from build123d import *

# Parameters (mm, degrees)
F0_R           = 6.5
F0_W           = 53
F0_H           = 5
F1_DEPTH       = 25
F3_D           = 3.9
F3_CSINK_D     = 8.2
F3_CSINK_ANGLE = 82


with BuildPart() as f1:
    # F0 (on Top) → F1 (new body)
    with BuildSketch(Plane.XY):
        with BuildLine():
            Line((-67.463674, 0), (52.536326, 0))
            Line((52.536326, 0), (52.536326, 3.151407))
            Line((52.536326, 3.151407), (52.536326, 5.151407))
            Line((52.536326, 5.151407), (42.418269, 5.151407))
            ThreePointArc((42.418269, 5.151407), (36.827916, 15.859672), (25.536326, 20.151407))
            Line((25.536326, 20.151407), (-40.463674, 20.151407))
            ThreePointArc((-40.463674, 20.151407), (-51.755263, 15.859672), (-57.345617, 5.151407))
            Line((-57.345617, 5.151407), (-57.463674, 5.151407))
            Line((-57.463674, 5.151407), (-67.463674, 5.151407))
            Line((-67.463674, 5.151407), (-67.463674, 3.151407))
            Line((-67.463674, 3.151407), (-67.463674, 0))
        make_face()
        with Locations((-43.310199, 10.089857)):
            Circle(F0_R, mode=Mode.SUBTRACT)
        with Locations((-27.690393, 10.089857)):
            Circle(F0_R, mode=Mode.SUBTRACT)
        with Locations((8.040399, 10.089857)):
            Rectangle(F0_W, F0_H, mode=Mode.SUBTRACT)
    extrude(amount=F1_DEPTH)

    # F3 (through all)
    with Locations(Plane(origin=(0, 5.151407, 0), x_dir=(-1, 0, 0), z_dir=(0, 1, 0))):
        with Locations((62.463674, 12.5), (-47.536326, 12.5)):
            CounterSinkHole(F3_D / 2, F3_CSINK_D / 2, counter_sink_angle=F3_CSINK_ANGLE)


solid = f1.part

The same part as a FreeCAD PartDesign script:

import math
import FreeCAD as App
import Part
import Sketcher

doc = App.newDocument("Part")
body = doc.addObject("PartDesign::Body", "Body")

# Sketch on XY plane
sketch1 = body.newObject("Sketcher::SketchObject", "Sketch")
sketch1.AttachmentSupport = (doc.getObject("XY_Plane"), [""])
sketch1.MapMode = "FlatFace"
sketch1.addGeometry([
    Part.LineSegment(App.Vector(-67, 0, 0), App.Vector(53, 0, 0)),  # 0
    Part.LineSegment(App.Vector(53, 0, 0), App.Vector(53, 5, 0)),  # 1
    Part.LineSegment(App.Vector(53, 5, 0), App.Vector(42, 5, 0)),  # 2
    Part.ArcOfCircle(Part.Circle(App.Vector(26, 3, 0), App.Vector(0, 0, 1), 17), math.radians(7), math.radians(90)),  # 3
    Part.LineSegment(App.Vector(26, 20, 0), App.Vector(-40, 20, 0)),  # 4
    Part.ArcOfCircle(Part.Circle(App.Vector(-40, 3, 0), App.Vector(0, 0, 1), 17), math.radians(90), math.radians(173)),  # 5
    Part.LineSegment(App.Vector(-57, 5, 0), App.Vector(-67, 5, 0)),  # 6
    Part.LineSegment(App.Vector(-67, 5, 0), App.Vector(-67, 0, 0)),  # 7
    Part.Circle(App.Vector(-43, 10, 0), App.Vector(0, 0, 1), 6),  # 8
    Part.Circle(App.Vector(-28, 10, 0), App.Vector(0, 0, 1), 6),  # 9
    Part.LineSegment(App.Vector(35, 8, 0), App.Vector(-18, 8, 0)),  # 10
    Part.LineSegment(App.Vector(-18, 8, 0), App.Vector(-18, 13, 0)),  # 11
    Part.LineSegment(App.Vector(-18, 13, 0), App.Vector(35, 13, 0)),  # 12
    Part.LineSegment(App.Vector(35, 13, 0), App.Vector(35, 8, 0)),  # 13
], False)
sketch1.addConstraint([
    Sketcher.Constraint("Coincident", 0, 2, 1, 1),
    Sketcher.Constraint("Coincident", 1, 2, 2, 1),
    Sketcher.Constraint("Coincident", 2, 2, 3, 1),
    Sketcher.Constraint("Tangent", 3, 2, 4, 1),
    Sketcher.Constraint("Tangent", 4, 2, 5, 1),
    Sketcher.Constraint("Coincident", 5, 2, 6, 1),
    Sketcher.Constraint("Coincident", 6, 2, 7, 1),
    Sketcher.Constraint("Coincident", 7, 2, 0, 1),
    Sketcher.Constraint("Coincident", 10, 2, 11, 1),
    Sketcher.Constraint("Coincident", 11, 2, 12, 1),
    Sketcher.Constraint("Coincident", 12, 2, 13, 1),
    Sketcher.Constraint("Coincident", 13, 2, 10, 1),
    Sketcher.Constraint("Horizontal", 0),
    Sketcher.Constraint("Vertical", 1),
    Sketcher.Constraint("Horizontal", 2),
    Sketcher.Constraint("Horizontal", 4),
    Sketcher.Constraint("Horizontal", 6),
    Sketcher.Constraint("Vertical", 7),
    Sketcher.Constraint("Horizontal", 10),
    Sketcher.Constraint("Vertical", 11),
    Sketcher.Constraint("Horizontal", 12),
    Sketcher.Constraint("Vertical", 13),
    Sketcher.Constraint("Equal", 3, 5),
    Sketcher.Constraint("Equal", 8, 9),
    Sketcher.Constraint("PointOnObject", 0, 2, -1),
    Sketcher.Constraint("Horizontal", 8, 3, 9, 3),
    Sketcher.Constraint("Horizontal", 2, 2, 5, 2),
    Sketcher.Constraint("Equal", 2, 6),
    Sketcher.Constraint("Diameter", 8, 13.0),
    Sketcher.Constraint("Radius", 3, 17.0),
    Sketcher.Constraint("DistanceX", 0, 1, 0, 2, 120.0),
    Sketcher.Constraint("DistanceX", 4, 2, 4, 1, 66.0),
    Sketcher.Constraint("DistanceX", 10, 2, 10, 1, 53.0),
    Sketcher.Constraint("DistanceY", 11, 1, 11, 2, 5.0),
    Sketcher.Constraint("DistanceY", 3, 3, 1, 2, 2.0),
    Sketcher.Constraint("DistanceY", 10, 2, 9, 3, 2.5),
    Sketcher.Constraint("DistanceX", 8, 3, -1, 1, 43.310199),
    Sketcher.Constraint("DistanceX", 10, 2, -1, 1, 18.459601),
    Sketcher.Constraint("DistanceY", 1, 1, 1, 2, 5.151407),
    Sketcher.Constraint("DistanceX", -1, 1, 2, 2, 42.418269),
    Sketcher.Constraint("DistanceY", 5, 3, 8, 3, 6.938452),
    Sketcher.Constraint("DistanceX", 5, 3, 9, 3, 12.77328),
])
pad1 = body.newObject("PartDesign::Pad", "Pad")
pad1.Profile = sketch1
pad1.Length = 25

# Sketch on XZ plane
sketch2 = body.newObject("Sketcher::SketchObject", "Sketch001")
sketch2.AttachmentSupport = (doc.getObject("XZ_Plane"), [""])
sketch2.MapMode = "FlatFace"
sketch2.AttachmentOffset = App.Placement(App.Vector(0, 0, -5.151407), App.Rotation())
sketch2.addGeometry([
    Part.Circle(App.Vector(-62.5, 12.5, 0), App.Vector(0, 0, 1), 1.9),
    Part.Circle(App.Vector(47.5, 12.5, 0), App.Vector(0, 0, 1), 1.9),
], False)
sketch2.addConstraint([
    Sketcher.Constraint("Equal", 0, 1),
    Sketcher.Constraint("Horizontal", 0, 3, 1, 3),
    Sketcher.Constraint("Diameter", 0, 3.9),
    Sketcher.Constraint("DistanceX", 0, 3, 1, 3, 110.0),
    Sketcher.Constraint("DistanceY", -1, 1, 0, 3, 12.5),
    Sketcher.Constraint("DistanceX", 0, 3, -1, 1, 62.463674),
])
doc.recompute()
hole = body.newObject("PartDesign::Hole", "Hole")
hole.Profile = sketch2
hole.ThreadType = "None"
hole.Diameter = 3.9
hole.DepthType = "ThroughAll"
hole.HoleCutType = "Countersink"
hole.HoleCutDiameter = 8.2
hole.HoleCutCountersinkAngle = 82
hole.Reversed = True

doc.recompute()
